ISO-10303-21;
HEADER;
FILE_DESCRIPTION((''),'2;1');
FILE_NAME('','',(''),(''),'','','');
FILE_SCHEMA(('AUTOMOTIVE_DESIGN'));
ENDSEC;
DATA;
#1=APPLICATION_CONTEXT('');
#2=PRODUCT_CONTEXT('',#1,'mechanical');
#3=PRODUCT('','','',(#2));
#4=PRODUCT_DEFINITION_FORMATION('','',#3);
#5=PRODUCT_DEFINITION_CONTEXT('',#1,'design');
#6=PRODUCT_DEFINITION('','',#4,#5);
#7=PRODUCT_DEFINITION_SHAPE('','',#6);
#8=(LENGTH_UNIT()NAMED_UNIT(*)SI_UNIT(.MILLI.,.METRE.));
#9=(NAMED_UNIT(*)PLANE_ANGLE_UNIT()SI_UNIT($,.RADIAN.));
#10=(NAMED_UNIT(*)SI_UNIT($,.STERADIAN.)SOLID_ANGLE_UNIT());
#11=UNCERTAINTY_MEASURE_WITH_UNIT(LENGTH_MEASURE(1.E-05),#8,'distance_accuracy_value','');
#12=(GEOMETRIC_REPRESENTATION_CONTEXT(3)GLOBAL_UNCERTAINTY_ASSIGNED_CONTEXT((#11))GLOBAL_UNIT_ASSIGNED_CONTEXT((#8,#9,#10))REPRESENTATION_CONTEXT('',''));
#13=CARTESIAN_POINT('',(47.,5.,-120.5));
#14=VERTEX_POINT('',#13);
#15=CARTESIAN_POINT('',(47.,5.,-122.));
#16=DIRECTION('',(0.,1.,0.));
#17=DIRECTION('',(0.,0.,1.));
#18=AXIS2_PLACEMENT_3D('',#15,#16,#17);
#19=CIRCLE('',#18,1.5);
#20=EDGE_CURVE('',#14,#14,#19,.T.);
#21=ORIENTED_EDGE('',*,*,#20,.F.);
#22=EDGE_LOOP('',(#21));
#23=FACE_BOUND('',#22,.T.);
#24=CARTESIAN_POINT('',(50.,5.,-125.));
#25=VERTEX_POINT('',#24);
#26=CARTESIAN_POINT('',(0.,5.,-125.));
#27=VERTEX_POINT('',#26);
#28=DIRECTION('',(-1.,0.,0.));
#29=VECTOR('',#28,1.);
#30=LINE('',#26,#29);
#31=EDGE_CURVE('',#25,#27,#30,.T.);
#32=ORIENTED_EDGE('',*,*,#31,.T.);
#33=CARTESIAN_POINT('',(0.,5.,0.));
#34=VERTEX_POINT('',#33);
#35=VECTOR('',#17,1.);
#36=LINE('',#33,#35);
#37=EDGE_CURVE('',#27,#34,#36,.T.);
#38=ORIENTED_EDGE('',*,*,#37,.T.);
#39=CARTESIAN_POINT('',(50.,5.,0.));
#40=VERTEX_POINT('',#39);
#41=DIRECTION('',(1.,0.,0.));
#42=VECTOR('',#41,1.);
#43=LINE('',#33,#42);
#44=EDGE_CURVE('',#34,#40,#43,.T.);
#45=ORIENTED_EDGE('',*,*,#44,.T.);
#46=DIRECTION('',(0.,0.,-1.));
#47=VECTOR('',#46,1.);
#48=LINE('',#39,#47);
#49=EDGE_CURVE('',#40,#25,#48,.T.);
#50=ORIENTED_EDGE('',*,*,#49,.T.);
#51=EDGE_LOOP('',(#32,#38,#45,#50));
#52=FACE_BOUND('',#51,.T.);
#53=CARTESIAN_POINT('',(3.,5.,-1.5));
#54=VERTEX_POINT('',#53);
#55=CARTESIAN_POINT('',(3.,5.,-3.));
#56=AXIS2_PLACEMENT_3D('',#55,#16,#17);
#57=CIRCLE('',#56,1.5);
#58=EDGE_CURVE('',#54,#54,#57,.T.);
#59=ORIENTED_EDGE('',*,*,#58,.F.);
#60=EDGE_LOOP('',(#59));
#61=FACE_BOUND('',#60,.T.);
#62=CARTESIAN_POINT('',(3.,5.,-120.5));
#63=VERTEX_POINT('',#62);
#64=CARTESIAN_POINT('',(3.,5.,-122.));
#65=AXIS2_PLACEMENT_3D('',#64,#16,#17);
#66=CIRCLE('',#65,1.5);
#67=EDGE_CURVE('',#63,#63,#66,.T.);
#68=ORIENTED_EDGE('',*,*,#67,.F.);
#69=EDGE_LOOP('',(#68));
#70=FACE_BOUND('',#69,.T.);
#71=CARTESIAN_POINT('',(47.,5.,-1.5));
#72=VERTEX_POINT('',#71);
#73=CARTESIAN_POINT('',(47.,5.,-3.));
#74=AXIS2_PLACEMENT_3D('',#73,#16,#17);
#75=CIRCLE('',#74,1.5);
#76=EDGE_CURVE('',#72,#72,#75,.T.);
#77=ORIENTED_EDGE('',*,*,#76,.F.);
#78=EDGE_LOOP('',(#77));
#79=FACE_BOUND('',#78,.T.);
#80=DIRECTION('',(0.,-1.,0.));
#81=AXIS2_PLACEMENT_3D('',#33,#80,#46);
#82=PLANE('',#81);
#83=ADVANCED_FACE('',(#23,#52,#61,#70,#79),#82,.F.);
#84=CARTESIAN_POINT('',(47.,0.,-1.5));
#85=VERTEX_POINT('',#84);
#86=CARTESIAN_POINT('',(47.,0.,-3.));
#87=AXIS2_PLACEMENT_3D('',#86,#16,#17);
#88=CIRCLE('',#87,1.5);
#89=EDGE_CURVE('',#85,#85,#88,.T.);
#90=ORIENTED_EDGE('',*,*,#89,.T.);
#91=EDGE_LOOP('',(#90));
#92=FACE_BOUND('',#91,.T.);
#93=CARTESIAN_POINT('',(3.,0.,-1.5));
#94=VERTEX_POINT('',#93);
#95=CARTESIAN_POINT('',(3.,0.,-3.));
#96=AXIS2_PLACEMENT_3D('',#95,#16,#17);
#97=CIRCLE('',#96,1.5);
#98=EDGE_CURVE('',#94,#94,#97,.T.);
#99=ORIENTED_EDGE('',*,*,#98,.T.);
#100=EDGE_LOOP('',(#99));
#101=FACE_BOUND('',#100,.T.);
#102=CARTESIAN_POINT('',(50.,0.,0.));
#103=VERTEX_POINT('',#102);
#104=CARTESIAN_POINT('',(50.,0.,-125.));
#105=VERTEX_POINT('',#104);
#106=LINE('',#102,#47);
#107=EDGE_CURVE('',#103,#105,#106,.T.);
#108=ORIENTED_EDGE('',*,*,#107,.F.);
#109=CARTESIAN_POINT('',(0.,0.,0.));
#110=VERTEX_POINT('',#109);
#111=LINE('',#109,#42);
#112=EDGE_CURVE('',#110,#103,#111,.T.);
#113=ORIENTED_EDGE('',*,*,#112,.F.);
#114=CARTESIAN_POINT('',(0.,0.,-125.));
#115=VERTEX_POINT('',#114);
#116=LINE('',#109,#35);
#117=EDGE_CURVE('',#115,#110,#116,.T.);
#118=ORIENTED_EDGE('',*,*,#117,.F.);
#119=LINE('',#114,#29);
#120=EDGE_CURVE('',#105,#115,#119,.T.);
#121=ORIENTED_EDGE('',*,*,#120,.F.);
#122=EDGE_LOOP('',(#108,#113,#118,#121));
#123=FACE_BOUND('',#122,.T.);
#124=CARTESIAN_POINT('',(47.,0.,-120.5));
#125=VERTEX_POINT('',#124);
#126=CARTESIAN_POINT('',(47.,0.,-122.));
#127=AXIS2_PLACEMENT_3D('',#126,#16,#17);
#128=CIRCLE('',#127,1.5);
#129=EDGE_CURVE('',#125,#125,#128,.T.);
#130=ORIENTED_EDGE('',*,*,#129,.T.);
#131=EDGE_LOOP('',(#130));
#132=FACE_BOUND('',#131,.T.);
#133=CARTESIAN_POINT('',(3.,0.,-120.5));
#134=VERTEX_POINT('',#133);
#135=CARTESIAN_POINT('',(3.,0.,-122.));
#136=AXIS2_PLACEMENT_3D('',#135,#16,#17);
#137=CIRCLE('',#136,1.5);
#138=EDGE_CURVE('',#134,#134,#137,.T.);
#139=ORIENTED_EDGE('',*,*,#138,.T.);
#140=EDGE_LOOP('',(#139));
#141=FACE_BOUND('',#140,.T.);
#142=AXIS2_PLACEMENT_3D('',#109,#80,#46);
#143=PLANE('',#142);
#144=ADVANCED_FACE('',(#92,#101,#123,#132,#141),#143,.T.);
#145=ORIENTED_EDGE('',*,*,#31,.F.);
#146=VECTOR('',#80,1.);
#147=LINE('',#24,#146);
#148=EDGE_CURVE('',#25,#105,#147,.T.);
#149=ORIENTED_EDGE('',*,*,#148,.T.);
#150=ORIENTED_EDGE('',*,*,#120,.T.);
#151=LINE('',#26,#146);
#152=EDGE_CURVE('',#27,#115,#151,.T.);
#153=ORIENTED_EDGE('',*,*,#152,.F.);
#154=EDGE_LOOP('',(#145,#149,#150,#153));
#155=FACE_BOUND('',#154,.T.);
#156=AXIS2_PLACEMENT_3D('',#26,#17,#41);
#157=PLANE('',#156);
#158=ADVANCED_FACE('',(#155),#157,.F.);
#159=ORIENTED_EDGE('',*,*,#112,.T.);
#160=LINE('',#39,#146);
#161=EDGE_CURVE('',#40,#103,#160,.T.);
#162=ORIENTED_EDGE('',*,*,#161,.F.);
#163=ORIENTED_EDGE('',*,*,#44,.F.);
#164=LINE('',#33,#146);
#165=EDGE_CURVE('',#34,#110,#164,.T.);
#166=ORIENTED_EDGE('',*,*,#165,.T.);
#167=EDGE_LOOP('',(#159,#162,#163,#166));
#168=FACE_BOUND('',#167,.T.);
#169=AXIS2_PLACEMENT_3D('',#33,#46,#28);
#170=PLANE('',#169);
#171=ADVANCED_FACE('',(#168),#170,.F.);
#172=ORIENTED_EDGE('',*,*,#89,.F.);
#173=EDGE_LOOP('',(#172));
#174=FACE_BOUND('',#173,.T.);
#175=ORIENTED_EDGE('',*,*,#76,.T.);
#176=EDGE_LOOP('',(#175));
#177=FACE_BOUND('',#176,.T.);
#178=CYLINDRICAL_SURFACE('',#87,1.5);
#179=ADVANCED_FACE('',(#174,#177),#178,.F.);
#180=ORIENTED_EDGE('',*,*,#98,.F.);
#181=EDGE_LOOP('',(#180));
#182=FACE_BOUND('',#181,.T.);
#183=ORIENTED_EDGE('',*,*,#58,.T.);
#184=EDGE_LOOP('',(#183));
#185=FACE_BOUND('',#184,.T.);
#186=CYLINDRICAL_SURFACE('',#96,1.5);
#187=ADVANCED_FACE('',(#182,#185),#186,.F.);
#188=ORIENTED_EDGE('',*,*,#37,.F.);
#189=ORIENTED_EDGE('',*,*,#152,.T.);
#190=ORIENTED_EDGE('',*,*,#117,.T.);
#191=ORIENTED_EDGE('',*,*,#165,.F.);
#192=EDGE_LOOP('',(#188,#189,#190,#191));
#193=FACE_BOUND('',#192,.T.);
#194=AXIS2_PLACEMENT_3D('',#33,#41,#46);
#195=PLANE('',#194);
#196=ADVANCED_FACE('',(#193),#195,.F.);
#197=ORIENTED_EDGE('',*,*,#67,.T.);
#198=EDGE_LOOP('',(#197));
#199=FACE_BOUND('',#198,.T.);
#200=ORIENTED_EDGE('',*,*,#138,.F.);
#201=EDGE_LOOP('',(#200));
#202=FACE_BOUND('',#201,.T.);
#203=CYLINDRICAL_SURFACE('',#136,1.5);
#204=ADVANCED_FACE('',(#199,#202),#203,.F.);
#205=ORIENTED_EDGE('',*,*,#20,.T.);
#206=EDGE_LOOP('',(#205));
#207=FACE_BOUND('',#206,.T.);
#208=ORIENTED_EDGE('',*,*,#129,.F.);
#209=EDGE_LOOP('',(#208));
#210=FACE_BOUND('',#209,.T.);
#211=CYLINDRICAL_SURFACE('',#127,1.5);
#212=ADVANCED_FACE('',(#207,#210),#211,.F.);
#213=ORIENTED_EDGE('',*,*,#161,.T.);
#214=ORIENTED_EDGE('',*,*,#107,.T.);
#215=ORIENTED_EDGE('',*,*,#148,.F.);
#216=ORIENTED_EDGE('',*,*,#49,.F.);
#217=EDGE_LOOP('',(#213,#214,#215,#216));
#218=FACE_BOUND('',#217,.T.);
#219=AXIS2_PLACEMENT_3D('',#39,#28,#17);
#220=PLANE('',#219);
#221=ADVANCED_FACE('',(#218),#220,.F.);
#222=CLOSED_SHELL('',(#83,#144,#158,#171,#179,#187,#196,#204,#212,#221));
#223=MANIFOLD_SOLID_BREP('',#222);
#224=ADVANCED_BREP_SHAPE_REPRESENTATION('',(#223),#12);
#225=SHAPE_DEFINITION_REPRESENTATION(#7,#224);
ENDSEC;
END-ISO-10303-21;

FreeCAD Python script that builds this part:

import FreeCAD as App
import Part
import Sketcher
from FreeCAD import Vector

doc = App.newDocument("Part")
body = doc.addObject("PartDesign::Body", "Body")

sketch1 = body.newObject("Sketcher::SketchObject", "Sketch")
sketch1.AttachmentSupport = (doc.getObject("XZ_Plane"), [""])
sketch1.MapMode = "FlatFace"
sketch1.addGeometry([
    Part.LineSegment(Vector(0, -125, 0), Vector(0, 0, 0)),
    Part.LineSegment(Vector(0, 0, 0), Vector(50, 0, 0)),
    Part.LineSegment(Vector(50, 0, 0), Vector(50, -125, 0)),
    Part.LineSegment(Vector(50, -125, 0), Vector(0, -125, 0)),
], False)
sketch1.addConstraint([
    Sketcher.Constraint("Coincident", 0, 2, 1, 1),
    Sketcher.Constraint("Coincident", 1, 2, 2, 1),
    Sketcher.Constraint("Coincident", 2, 2, 3, 1),
    Sketcher.Constraint("Coincident", 3, 2, 0, 1),
    Sketcher.Constraint("Vertical", 0),
    Sketcher.Constraint("Horizontal", 1),
    Sketcher.Constraint("Vertical", 2),
    Sketcher.Constraint("Horizontal", 3),
    Sketcher.Constraint("Coincident", 0, 2, -1, 1),
    Sketcher.Constraint("DistanceX", 1, 1, 1, 2, 50.0),
    Sketcher.Constraint("DistanceY", 0, 1, 0, 2, 125.0),
])
pad1 = body.newObject("PartDesign::Pad", "Pad")
pad1.Profile = sketch1
pad1.Length = 5
pad1.Reversed = True

sketch2 = body.newObject("Sketcher::SketchObject", "Sketch001")
sketch2.AttachmentSupport = (doc.getObject("XZ_Plane"), [""])
sketch2.MapMode = "FlatFace"
sketch2.AttachmentOffset = App.Placement(Vector(0, 0, -5), App.Rotation())
sketch2.addGeometry([
    Part.Circle(Vector(3, -122, 0), Vector(0, 0, 1), 1.5),
    Part.Circle(Vector(47, -122, 0), Vector(0, 0, 1), 1.5),
    Part.Circle(Vector(3, -3, 0), Vector(0, 0, 1), 1.5),
    Part.Circle(Vector(47, -3, 0), Vector(0, 0, 1), 1.5),
], False)
sketch2.addConstraint([
    Sketcher.Constraint("Equal", 0, 1),
    Sketcher.Constraint("Equal", 1, 2),
    Sketcher.Constraint("Equal", 2, 3),
    Sketcher.Constraint("Horizontal", 0, 3, 1, 3),
    Sketcher.Constraint("Horizontal", 2, 3, 3, 3),
    Sketcher.Constraint("Vertical", 0, 3, 2, 3),
    Sketcher.Constraint("Vertical", 1, 3, 3, 3),
    Sketcher.Constraint("Diameter", 0, 3.0),
    Sketcher.Constraint("DistanceX", -1, 1, 0, 3, 3.0),
    Sketcher.Constraint("DistanceY", 0, 3, -1, 1, 122.0),
    Sketcher.Constraint("DistanceX", -1, 1, 1, 3, 47.0),
    Sketcher.Constraint("DistanceY", 2, 3, -1, 1, 3.0),
])
pocket1 = body.newObject("PartDesign::Pocket", "Pocket")
pocket1.Profile = sketch2
pocket1.Type = "ThroughAll"
pocket1.Reversed = True

doc.recompute()
